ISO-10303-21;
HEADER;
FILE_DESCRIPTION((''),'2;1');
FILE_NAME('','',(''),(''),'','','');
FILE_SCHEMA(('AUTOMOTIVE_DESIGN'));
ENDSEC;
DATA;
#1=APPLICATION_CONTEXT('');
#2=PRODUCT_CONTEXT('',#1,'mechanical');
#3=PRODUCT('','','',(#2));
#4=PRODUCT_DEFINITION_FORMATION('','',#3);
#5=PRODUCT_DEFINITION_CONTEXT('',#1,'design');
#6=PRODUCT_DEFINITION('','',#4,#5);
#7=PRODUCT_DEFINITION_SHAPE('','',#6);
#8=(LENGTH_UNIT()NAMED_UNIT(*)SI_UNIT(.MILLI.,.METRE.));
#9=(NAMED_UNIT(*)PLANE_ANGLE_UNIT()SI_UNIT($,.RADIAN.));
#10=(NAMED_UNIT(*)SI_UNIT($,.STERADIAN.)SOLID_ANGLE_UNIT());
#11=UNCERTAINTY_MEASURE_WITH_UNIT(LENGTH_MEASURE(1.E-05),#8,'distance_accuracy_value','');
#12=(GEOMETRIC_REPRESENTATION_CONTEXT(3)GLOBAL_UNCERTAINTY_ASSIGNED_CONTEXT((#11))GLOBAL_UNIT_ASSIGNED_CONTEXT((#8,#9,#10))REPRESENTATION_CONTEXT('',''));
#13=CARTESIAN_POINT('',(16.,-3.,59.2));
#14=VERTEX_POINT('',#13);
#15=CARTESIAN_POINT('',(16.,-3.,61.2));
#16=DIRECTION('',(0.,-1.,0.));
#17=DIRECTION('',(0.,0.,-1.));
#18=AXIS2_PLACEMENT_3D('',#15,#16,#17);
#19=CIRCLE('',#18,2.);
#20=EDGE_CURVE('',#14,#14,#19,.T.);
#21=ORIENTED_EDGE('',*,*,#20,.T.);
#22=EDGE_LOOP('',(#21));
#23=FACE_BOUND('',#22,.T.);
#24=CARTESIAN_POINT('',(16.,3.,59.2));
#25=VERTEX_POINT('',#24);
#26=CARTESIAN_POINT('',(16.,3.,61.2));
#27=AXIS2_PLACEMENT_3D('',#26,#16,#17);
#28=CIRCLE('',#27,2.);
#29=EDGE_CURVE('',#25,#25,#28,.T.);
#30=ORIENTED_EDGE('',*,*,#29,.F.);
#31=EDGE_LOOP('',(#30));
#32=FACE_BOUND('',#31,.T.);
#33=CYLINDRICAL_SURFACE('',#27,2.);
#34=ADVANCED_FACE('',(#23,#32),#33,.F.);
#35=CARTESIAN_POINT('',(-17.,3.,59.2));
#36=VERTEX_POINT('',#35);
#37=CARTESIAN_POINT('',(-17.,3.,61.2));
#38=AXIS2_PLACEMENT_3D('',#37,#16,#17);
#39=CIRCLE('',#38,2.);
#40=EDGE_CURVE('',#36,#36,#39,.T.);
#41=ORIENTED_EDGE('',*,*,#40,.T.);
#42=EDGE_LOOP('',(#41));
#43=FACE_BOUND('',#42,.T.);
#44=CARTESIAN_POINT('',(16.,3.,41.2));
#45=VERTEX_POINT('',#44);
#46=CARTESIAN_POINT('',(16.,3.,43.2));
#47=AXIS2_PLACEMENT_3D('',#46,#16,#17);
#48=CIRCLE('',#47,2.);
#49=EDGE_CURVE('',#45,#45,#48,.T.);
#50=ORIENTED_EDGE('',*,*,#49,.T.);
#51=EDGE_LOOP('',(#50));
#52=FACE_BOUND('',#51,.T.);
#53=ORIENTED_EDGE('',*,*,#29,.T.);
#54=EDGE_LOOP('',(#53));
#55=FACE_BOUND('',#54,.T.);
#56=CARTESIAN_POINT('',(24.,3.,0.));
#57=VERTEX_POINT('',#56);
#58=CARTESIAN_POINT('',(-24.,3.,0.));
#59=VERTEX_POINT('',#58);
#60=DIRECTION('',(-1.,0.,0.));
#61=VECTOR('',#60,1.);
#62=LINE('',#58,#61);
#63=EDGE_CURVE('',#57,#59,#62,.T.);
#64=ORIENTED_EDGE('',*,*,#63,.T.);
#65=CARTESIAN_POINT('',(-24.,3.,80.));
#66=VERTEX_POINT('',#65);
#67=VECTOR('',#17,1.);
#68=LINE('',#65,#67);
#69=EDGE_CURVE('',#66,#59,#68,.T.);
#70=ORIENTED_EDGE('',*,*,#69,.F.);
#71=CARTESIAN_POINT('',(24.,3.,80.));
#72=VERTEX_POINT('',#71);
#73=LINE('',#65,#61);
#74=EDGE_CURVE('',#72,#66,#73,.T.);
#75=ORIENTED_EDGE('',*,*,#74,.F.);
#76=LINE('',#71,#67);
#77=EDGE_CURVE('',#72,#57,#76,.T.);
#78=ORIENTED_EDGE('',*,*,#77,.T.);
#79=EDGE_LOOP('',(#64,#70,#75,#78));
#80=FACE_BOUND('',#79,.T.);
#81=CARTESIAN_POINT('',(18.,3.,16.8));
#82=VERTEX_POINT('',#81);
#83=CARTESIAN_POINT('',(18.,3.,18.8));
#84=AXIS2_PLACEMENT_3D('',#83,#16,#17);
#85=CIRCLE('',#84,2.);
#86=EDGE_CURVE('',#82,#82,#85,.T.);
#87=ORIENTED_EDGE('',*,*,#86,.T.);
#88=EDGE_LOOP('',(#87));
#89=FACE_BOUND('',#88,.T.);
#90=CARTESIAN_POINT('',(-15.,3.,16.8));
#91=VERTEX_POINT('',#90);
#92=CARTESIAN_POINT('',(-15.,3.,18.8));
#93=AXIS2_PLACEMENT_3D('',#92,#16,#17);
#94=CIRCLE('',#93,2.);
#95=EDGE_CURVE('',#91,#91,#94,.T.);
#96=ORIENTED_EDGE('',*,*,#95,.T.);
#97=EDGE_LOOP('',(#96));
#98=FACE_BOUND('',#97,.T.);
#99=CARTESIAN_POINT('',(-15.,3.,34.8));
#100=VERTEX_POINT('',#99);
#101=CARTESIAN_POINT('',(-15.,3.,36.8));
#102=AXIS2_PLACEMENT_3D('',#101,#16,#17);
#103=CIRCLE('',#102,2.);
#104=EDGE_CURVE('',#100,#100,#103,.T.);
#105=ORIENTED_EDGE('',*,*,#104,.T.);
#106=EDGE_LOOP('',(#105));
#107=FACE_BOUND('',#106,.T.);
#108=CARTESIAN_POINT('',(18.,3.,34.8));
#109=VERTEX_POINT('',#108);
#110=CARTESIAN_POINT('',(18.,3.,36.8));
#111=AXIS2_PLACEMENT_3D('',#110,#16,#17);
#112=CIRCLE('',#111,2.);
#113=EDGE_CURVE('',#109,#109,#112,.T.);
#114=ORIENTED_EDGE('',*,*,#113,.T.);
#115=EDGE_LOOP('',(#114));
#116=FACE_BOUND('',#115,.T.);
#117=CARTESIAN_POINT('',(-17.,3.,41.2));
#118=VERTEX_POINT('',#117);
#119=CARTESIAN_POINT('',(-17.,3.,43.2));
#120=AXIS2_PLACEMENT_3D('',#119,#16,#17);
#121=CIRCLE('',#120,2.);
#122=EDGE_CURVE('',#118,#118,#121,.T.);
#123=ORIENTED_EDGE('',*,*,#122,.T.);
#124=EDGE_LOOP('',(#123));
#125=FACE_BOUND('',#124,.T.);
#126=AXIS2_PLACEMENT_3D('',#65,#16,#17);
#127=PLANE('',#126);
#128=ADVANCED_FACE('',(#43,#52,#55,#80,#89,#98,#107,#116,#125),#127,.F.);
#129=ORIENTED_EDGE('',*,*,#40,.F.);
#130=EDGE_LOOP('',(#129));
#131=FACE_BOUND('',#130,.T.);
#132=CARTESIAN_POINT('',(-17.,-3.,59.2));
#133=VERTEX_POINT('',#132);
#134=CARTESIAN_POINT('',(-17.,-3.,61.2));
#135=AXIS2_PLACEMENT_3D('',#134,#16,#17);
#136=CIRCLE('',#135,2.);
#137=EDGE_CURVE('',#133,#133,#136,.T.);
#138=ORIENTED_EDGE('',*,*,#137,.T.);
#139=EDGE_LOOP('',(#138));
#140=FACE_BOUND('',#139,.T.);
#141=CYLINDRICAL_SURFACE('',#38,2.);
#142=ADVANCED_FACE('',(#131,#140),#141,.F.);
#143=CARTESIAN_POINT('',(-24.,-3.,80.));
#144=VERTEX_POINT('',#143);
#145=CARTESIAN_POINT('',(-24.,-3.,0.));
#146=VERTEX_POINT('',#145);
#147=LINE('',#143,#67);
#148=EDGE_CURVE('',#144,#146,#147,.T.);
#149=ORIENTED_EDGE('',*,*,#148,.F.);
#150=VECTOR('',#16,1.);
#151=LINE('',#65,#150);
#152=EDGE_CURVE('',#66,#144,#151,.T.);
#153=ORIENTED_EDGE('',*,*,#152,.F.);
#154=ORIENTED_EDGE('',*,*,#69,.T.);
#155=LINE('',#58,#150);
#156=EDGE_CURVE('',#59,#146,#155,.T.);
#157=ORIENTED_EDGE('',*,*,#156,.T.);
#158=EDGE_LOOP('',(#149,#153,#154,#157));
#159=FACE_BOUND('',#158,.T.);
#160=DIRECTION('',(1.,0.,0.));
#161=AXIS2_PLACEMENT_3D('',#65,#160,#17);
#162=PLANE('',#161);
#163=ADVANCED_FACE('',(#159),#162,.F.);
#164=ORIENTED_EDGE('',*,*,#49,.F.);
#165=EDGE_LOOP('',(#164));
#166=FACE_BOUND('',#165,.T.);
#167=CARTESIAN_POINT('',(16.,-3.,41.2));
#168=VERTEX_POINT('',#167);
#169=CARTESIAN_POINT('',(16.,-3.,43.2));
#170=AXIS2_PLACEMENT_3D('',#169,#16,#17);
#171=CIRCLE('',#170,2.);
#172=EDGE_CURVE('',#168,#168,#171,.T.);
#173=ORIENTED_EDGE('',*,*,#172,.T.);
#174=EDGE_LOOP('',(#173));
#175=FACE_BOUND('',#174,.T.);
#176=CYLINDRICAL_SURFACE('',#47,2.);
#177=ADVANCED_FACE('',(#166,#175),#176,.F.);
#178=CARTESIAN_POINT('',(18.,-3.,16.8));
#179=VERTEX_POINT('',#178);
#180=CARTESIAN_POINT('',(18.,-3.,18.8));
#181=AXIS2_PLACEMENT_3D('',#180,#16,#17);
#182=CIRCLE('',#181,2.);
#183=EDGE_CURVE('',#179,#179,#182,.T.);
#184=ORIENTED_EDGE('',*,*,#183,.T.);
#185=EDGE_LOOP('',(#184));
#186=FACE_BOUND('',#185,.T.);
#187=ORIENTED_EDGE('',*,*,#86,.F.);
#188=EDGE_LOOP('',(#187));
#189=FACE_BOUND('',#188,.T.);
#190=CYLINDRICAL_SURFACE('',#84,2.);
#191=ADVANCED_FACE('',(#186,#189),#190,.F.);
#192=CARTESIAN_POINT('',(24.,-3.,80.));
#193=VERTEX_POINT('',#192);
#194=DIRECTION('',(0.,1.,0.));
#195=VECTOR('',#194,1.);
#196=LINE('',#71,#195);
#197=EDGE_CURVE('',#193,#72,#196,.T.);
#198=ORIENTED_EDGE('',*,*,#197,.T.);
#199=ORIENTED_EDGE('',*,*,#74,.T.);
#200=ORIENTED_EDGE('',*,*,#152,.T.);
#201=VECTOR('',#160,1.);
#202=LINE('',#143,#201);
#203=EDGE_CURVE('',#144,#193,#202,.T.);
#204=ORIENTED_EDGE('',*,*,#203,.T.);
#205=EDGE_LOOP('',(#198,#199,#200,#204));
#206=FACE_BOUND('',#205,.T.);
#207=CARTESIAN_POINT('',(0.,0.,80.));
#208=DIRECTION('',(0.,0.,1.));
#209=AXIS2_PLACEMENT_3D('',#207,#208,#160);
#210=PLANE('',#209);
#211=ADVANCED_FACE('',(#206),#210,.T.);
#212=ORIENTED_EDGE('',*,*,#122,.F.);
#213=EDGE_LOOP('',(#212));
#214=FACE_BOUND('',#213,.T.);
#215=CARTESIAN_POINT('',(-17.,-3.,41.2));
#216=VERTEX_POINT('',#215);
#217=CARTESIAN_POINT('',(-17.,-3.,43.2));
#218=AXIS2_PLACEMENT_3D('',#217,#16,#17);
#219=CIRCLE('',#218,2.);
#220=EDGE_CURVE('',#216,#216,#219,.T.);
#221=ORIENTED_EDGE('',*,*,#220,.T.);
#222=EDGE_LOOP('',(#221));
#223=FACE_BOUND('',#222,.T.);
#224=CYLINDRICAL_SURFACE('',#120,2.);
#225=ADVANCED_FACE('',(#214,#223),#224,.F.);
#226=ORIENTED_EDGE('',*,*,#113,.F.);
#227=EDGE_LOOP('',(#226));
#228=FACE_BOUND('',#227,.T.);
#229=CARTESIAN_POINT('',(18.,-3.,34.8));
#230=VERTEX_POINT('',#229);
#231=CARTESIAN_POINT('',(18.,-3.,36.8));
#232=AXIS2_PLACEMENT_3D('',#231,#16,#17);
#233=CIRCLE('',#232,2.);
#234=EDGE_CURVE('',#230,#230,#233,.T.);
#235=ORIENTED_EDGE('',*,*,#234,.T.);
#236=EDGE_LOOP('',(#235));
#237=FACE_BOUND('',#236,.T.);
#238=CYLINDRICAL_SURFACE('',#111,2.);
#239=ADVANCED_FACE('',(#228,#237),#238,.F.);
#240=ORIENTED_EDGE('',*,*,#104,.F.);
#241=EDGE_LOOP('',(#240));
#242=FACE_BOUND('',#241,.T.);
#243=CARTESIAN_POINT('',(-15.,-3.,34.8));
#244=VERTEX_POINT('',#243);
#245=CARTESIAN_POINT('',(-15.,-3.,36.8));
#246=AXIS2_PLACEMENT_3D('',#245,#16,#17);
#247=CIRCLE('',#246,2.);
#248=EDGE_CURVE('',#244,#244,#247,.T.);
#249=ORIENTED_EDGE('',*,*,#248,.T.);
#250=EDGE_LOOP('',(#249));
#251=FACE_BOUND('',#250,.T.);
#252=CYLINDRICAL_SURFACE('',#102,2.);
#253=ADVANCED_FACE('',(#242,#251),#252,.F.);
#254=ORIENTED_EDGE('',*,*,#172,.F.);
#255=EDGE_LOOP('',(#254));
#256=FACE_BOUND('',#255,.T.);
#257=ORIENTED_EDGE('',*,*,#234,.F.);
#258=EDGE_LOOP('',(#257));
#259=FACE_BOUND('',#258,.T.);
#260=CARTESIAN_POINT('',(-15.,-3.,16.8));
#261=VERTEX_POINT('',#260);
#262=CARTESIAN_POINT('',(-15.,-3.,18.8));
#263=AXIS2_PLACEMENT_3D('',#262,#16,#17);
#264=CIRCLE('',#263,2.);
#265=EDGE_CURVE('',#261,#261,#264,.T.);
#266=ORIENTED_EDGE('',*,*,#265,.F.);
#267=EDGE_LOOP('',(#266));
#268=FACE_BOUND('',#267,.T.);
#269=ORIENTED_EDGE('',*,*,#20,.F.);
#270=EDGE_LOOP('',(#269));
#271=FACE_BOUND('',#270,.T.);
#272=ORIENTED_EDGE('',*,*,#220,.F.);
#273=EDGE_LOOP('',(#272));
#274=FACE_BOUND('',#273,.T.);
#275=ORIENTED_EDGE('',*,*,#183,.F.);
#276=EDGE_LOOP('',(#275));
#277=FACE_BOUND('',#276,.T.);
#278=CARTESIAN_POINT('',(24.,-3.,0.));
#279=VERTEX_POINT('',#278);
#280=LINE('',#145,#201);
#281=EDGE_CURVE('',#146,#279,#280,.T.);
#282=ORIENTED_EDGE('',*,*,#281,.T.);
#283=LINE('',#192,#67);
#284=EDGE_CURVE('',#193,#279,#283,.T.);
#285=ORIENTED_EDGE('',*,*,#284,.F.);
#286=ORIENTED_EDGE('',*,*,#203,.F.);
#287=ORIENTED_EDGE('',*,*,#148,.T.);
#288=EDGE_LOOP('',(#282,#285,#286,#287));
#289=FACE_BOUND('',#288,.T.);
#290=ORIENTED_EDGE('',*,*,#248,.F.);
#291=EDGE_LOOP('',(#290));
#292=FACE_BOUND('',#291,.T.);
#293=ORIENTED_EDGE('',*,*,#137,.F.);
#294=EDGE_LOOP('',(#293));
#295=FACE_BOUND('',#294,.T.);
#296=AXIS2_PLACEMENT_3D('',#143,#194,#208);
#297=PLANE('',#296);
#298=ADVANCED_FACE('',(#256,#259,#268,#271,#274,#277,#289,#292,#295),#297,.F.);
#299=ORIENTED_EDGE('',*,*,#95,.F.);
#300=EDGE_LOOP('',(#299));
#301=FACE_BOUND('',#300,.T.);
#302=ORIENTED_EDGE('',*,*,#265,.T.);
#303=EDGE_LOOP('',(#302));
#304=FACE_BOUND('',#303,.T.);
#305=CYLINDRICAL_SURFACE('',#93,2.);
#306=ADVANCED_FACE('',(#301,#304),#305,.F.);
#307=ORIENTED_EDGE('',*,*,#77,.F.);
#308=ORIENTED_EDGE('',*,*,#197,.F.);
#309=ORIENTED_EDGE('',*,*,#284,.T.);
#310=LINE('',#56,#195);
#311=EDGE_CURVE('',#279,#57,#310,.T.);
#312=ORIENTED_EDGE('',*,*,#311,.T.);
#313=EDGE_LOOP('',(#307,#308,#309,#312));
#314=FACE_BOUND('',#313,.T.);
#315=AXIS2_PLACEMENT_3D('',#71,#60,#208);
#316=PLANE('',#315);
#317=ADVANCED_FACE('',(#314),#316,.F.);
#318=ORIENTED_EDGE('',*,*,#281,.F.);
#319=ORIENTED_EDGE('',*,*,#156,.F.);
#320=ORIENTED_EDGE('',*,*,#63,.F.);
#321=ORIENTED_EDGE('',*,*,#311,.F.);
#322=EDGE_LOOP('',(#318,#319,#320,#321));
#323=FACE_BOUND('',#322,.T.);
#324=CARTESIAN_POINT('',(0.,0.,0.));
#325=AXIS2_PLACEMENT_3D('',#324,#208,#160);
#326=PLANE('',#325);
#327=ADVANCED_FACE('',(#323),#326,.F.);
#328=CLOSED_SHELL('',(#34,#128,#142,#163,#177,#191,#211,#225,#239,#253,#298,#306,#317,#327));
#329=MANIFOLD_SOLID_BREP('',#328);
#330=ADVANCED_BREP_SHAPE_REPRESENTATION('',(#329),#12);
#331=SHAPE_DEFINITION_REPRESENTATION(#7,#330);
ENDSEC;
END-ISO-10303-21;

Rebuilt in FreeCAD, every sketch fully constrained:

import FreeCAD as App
import Part
import Sketcher


def add_polygon(sketch, points):
    """Adds a closed chain of lines whose ends are joined by coincident constraints."""
    first, n = sketch.GeometryCount, len(points)
    for a, b in zip(points, points[1:] + points[:1]):
        sketch.addGeometry(Part.LineSegment(App.Vector(*a, 0), App.Vector(*b, 0)), False)
    for i in range(n):
        sketch.addConstraint(Sketcher.Constraint("Coincident", first + i, 2, first + (i + 1) % n, 1))

doc = App.newDocument("Part")
body = doc.addObject("PartDesign::Body", "Body")

# Sketch on XY plane
sketch1 = doc.addObject("Sketcher::SketchObject", "Sketch")
body.addObject(sketch1)
sketch1.AttachmentSupport = (doc.XY_Plane, [""])
sketch1.MapMode = "FlatFace"
add_polygon(sketch1, [(-24, 3), (-24, -3), (24, -3), (24, 3)])  # lines 0-3
sketch1.addConstraint(Sketcher.Constraint("Vertical", 0))
sketch1.addConstraint(Sketcher.Constraint("Horizontal", 1))
sketch1.addConstraint(Sketcher.Constraint("Vertical", 2))
sketch1.addConstraint(Sketcher.Constraint("Horizontal", 3))
sketch1.addConstraint(Sketcher.Constraint("Symmetric", 0, 2, 2, 2, -1, 1))
sketch1.addConstraint(Sketcher.Constraint("DistanceX", 1, 1, 1, 2, 48.0))
sketch1.addConstraint(Sketcher.Constraint("DistanceY", 0, 2, 0, 1, 6.0))
pad1 = doc.addObject("PartDesign::Pad", "Pad")
body.addObject(pad1)
pad1.Profile = sketch1
pad1.Length = 80

# Sketch on XZ plane
sketch2 = doc.addObject("Sketcher::SketchObject", "Sketch001")
body.addObject(sketch2)
sketch2.AttachmentSupport = (doc.XZ_Plane, [""])
sketch2.MapMode = "FlatFace"
sketch2.AttachmentOffset = App.Placement(App.Vector(0, 0, 3), App.Rotation())
sketch2.addGeometry(Part.Circle(App.Vector(16, 61.2, 0), App.Vector(0, 0, 1), 2), False)
sketch2.addGeometry(Part.Circle(App.Vector(18, 36.8, 0), App.Vector(0, 0, 1), 2), False)
sketch2.addGeometry(Part.Circle(App.Vector(18, 18.8, 0), App.Vector(0, 0, 1), 2), False)
sketch2.addGeometry(Part.Circle(App.Vector(-17, 61.2, 0), App.Vector(0, 0, 1), 2), False)
sketch2.addGeometry(Part.Circle(App.Vector(-15, 36.8, 0), App.Vector(0, 0, 1), 2), False)
sketch2.addGeometry(Part.Circle(App.Vector(-15, 18.8, 0), App.Vector(0, 0, 1), 2), False)
sketch2.addGeometry(Part.Circle(App.Vector(-17, 43.2, 0), App.Vector(0, 0, 1), 2), False)
sketch2.addGeometry(Part.Circle(App.Vector(16, 43.2, 0), App.Vector(0, 0, 1), 2), False)
sketch2.addConstraint(Sketcher.Constraint("Equal", 0, 1))
sketch2.addConstraint(Sketcher.Constraint("Equal", 1, 2))
sketch2.addConstraint(Sketcher.Constraint("Equal", 2, 3))
sketch2.addConstraint(Sketcher.Constraint("Equal", 3, 4))
sketch2.addConstraint(Sketcher.Constraint("Equal", 4, 5))
sketch2.addConstraint(Sketcher.Constraint("Equal", 5, 6))
sketch2.addConstraint(Sketcher.Constraint("Equal", 6, 7))
sketch2.addConstraint(Sketcher.Constraint("Horizontal", 0, 3, 3, 3))
sketch2.addConstraint(Sketcher.Constraint("Horizontal", 1, 3, 4, 3))
sketch2.addConstraint(Sketcher.Constraint("Horizontal", 2, 3, 5, 3))
sketch2.addConstraint(Sketcher.Constraint("Horizontal", 6, 3, 7, 3))
sketch2.addConstraint(Sketcher.Constraint("Vertical", 1, 3, 2, 3))
sketch2.addConstraint(Sketcher.Constraint("Vertical", 4, 3, 5, 3))
sketch2.addConstraint(Sketcher.Constraint("Vertical", 3, 3, 6, 3))
sketch2.addConstraint(Sketcher.Constraint("Vertical", 0, 3, 7, 3))
sketch2.addConstraint(Sketcher.Constraint("Diameter", 0, 4.0))
sketch2.addConstraint(Sketcher.Constraint("DistanceX", -1, 1, 0, 3, 16.0))
sketch2.addConstraint(Sketcher.Constraint("DistanceX", -1, 1, 1, 3, 18.0))
sketch2.addConstraint(Sketcher.Constraint("DistanceX", 3, 3, -1, 1, 17.0))
sketch2.addConstraint(Sketcher.Constraint("DistanceX", 4, 3, -1, 1, 15.0))
sketch2.addConstraint(Sketcher.Constraint("DistanceY", 2, 3, 1, 3, 18.0))
sketch2.addConstraint(Sketcher.Constraint("DistanceY", 6, 3, 3, 3, 18.0))
sketch2.addConstraint(Sketcher.Constraint("DistanceY", -1, 1, 0, 3, 61.2))
sketch2.addConstraint(Sketcher.Constraint("DistanceY", -1, 1, 1, 3, 36.8))
pocket1 = doc.addObject("PartDesign::Pocket", "Pocket")
body.addObject(pocket1)
pocket1.Profile = sketch2
pocket1.Type = "ThroughAll"

doc.recompute()
